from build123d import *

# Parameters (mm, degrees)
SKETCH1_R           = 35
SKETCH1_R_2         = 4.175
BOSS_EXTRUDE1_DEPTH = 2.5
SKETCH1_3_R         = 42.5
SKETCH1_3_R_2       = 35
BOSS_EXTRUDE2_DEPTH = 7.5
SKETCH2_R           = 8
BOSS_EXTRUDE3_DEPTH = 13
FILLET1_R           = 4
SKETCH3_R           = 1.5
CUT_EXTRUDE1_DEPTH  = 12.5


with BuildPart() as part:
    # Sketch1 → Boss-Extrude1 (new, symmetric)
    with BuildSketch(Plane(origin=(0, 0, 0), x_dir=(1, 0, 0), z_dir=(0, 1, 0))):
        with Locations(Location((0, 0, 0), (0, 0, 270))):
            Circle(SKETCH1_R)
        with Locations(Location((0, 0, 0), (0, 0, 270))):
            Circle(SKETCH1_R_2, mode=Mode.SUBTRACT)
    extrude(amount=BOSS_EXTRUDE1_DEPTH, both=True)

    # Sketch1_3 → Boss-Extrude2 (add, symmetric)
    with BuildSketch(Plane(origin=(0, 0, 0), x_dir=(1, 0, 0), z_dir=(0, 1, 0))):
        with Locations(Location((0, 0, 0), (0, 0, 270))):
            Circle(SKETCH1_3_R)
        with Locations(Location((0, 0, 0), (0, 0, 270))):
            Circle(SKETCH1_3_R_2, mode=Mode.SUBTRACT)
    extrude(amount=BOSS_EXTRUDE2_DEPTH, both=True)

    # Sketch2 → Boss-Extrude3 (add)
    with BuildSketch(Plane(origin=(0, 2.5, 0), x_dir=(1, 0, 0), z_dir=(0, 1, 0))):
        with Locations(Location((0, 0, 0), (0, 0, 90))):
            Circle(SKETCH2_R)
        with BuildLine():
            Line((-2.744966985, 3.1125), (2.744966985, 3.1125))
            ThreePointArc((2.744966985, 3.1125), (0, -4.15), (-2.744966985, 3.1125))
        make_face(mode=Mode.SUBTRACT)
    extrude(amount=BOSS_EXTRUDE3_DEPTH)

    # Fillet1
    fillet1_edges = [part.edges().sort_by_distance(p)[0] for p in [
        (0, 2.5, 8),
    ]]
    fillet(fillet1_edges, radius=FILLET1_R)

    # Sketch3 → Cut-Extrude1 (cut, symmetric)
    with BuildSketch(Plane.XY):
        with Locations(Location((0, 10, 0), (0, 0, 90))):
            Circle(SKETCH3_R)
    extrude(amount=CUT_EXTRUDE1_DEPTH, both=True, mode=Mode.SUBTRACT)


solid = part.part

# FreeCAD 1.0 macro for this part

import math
import FreeCAD as App
import Part
import Sketcher

V = App.Vector


def edges_at(feature, points):
    """Names of the edges that pass closest to the given points."""
    edges = feature.Shape.Edges
    near = lambda p: min(range(len(edges)), key=lambda i: edges[i].distToShape(Part.Vertex(*p))[0])
    return sorted({f"Edge{near(p) + 1}" for p in points})

doc = App.newDocument("Part")
body = doc.addObject("PartDesign::Body", "Body")

# Sketch on XZ plane
sketch1 = body.newObject("Sketcher::SketchObject", "Sketch")
sketch1.AttachmentSupport = (doc.getObject("XZ_Plane"), [""])
sketch1.MapMode = "FlatFace"
sketch1.addGeometry([
    Part.Circle(V(0, 0, 0), V(0, 0, 1), 35),
    Part.Circle(V(0, 0, 0), V(0, 0, 1), 4.2),
], False)
sketch1.addConstraint([
    Sketcher.Constraint("Coincident", 0, 3, -1, 1),
    Sketcher.Constraint("Coincident", 1, 3, -1, 1),
    Sketcher.Constraint("Diameter", 0, 70.0),
    Sketcher.Constraint("Diameter", 1, 8.35),
])
pad1 = body.newObject("PartDesign::Pad", "Pad")
pad1.Profile = sketch1
pad1.Length = 5
pad1.Midplane = True

# Sketch on XZ plane
sketch2 = body.newObject("Sketcher::SketchObject", "Sketch001")
sketch2.AttachmentSupport = (doc.getObject("XZ_Plane"), [""])
sketch2.MapMode = "FlatFace"
sketch2.addGeometry([
    Part.Circle(V(0, 0, 0), V(0, 0, 1), 42),
    Part.Circle(V(0, 0, 0), V(0, 0, 1), 35),
], False)
sketch2.addConstraint([
    Sketcher.Constraint("Coincident", 0, 3, -1, 1),
    Sketcher.Constraint("Coincident", 1, 3, -1, 1),
    Sketcher.Constraint("Diameter", 0, 85.0),
    Sketcher.Constraint("Diameter", 1, 70.0),
])
pad2 = body.newObject("PartDesign::Pad", "Pad001")
pad2.Profile = sketch2
pad2.Length = 15
pad2.Midplane = True

# Sketch on XZ plane
sketch3 = body.newObject("Sketcher::SketchObject", "Sketch002")
sketch3.AttachmentSupport = (doc.getObject("XZ_Plane"), [""])
sketch3.MapMode = "FlatFace"
sketch3.AttachmentOffset = App.Placement(V(0, 0, -2.5), App.Rotation())
sketch3.addGeometry([
    Part.Circle(V(0, 0, 0), V(0, 0, 1), 8),
    Part.ArcOfCircle(Part.Circle(V(0, 0, 0), V(0, 0, 1), 4.2), math.radians(-49), math.radians(229)),
    Part.LineSegment(V(-2.7, -3.1, 0), V(2.7, -3.1, 0)),
], False)
sketch3.addConstraint([
    Sketcher.Constraint("Coincident", 1, 1, 2, 2),
    Sketcher.Constraint("Coincident", 2, 1, 1, 2),
    Sketcher.Constraint("Horizontal", 2),
    Sketcher.Constraint("Coincident", 0, 3, -1, 1),
    Sketcher.Constraint("Coincident", 1, 3, -1, 1),
    Sketcher.Constraint("Diameter", 0, 16.0),
    Sketcher.Constraint("Radius", 1, 4.15),
    Sketcher.Constraint("DistanceY", 1, 1, -1, 1, 3.1125),
])
pad3 = body.newObject("PartDesign::Pad", "Pad002")
pad3.Profile = sketch3
pad3.Length = 13
pad3.Reversed = True
doc.recompute()

fillet = body.newObject("PartDesign::Fillet", "Fillet")
fillet.Base = (pad3, edges_at(pad3, [(0, 2.5, 8)]))
fillet.Radius = 4

# Sketch on XY plane
sketch4 = body.newObject("Sketcher::SketchObject", "Sketch003")
sketch4.AttachmentSupport = (doc.getObject("XY_Plane"), [""])
sketch4.MapMode = "FlatFace"
sketch4.addGeometry(Part.Circle(V(0, 10, 0), V(0, 0, 1), 1.5), False)
sketch4.addConstraint([
    Sketcher.Constraint("PointOnObject", 0, 3, -2),
    Sketcher.Constraint("Diameter", 0, 3.0),
    Sketcher.Constraint("DistanceY", -1, 1, 0, 3, 10.0),
])
pocket1 = body.newObject("PartDesign::Pocket", "Pocket")
pocket1.Profile = sketch4
pocket1.Length = 25
pocket1.Midplane = True

doc.recompute()
